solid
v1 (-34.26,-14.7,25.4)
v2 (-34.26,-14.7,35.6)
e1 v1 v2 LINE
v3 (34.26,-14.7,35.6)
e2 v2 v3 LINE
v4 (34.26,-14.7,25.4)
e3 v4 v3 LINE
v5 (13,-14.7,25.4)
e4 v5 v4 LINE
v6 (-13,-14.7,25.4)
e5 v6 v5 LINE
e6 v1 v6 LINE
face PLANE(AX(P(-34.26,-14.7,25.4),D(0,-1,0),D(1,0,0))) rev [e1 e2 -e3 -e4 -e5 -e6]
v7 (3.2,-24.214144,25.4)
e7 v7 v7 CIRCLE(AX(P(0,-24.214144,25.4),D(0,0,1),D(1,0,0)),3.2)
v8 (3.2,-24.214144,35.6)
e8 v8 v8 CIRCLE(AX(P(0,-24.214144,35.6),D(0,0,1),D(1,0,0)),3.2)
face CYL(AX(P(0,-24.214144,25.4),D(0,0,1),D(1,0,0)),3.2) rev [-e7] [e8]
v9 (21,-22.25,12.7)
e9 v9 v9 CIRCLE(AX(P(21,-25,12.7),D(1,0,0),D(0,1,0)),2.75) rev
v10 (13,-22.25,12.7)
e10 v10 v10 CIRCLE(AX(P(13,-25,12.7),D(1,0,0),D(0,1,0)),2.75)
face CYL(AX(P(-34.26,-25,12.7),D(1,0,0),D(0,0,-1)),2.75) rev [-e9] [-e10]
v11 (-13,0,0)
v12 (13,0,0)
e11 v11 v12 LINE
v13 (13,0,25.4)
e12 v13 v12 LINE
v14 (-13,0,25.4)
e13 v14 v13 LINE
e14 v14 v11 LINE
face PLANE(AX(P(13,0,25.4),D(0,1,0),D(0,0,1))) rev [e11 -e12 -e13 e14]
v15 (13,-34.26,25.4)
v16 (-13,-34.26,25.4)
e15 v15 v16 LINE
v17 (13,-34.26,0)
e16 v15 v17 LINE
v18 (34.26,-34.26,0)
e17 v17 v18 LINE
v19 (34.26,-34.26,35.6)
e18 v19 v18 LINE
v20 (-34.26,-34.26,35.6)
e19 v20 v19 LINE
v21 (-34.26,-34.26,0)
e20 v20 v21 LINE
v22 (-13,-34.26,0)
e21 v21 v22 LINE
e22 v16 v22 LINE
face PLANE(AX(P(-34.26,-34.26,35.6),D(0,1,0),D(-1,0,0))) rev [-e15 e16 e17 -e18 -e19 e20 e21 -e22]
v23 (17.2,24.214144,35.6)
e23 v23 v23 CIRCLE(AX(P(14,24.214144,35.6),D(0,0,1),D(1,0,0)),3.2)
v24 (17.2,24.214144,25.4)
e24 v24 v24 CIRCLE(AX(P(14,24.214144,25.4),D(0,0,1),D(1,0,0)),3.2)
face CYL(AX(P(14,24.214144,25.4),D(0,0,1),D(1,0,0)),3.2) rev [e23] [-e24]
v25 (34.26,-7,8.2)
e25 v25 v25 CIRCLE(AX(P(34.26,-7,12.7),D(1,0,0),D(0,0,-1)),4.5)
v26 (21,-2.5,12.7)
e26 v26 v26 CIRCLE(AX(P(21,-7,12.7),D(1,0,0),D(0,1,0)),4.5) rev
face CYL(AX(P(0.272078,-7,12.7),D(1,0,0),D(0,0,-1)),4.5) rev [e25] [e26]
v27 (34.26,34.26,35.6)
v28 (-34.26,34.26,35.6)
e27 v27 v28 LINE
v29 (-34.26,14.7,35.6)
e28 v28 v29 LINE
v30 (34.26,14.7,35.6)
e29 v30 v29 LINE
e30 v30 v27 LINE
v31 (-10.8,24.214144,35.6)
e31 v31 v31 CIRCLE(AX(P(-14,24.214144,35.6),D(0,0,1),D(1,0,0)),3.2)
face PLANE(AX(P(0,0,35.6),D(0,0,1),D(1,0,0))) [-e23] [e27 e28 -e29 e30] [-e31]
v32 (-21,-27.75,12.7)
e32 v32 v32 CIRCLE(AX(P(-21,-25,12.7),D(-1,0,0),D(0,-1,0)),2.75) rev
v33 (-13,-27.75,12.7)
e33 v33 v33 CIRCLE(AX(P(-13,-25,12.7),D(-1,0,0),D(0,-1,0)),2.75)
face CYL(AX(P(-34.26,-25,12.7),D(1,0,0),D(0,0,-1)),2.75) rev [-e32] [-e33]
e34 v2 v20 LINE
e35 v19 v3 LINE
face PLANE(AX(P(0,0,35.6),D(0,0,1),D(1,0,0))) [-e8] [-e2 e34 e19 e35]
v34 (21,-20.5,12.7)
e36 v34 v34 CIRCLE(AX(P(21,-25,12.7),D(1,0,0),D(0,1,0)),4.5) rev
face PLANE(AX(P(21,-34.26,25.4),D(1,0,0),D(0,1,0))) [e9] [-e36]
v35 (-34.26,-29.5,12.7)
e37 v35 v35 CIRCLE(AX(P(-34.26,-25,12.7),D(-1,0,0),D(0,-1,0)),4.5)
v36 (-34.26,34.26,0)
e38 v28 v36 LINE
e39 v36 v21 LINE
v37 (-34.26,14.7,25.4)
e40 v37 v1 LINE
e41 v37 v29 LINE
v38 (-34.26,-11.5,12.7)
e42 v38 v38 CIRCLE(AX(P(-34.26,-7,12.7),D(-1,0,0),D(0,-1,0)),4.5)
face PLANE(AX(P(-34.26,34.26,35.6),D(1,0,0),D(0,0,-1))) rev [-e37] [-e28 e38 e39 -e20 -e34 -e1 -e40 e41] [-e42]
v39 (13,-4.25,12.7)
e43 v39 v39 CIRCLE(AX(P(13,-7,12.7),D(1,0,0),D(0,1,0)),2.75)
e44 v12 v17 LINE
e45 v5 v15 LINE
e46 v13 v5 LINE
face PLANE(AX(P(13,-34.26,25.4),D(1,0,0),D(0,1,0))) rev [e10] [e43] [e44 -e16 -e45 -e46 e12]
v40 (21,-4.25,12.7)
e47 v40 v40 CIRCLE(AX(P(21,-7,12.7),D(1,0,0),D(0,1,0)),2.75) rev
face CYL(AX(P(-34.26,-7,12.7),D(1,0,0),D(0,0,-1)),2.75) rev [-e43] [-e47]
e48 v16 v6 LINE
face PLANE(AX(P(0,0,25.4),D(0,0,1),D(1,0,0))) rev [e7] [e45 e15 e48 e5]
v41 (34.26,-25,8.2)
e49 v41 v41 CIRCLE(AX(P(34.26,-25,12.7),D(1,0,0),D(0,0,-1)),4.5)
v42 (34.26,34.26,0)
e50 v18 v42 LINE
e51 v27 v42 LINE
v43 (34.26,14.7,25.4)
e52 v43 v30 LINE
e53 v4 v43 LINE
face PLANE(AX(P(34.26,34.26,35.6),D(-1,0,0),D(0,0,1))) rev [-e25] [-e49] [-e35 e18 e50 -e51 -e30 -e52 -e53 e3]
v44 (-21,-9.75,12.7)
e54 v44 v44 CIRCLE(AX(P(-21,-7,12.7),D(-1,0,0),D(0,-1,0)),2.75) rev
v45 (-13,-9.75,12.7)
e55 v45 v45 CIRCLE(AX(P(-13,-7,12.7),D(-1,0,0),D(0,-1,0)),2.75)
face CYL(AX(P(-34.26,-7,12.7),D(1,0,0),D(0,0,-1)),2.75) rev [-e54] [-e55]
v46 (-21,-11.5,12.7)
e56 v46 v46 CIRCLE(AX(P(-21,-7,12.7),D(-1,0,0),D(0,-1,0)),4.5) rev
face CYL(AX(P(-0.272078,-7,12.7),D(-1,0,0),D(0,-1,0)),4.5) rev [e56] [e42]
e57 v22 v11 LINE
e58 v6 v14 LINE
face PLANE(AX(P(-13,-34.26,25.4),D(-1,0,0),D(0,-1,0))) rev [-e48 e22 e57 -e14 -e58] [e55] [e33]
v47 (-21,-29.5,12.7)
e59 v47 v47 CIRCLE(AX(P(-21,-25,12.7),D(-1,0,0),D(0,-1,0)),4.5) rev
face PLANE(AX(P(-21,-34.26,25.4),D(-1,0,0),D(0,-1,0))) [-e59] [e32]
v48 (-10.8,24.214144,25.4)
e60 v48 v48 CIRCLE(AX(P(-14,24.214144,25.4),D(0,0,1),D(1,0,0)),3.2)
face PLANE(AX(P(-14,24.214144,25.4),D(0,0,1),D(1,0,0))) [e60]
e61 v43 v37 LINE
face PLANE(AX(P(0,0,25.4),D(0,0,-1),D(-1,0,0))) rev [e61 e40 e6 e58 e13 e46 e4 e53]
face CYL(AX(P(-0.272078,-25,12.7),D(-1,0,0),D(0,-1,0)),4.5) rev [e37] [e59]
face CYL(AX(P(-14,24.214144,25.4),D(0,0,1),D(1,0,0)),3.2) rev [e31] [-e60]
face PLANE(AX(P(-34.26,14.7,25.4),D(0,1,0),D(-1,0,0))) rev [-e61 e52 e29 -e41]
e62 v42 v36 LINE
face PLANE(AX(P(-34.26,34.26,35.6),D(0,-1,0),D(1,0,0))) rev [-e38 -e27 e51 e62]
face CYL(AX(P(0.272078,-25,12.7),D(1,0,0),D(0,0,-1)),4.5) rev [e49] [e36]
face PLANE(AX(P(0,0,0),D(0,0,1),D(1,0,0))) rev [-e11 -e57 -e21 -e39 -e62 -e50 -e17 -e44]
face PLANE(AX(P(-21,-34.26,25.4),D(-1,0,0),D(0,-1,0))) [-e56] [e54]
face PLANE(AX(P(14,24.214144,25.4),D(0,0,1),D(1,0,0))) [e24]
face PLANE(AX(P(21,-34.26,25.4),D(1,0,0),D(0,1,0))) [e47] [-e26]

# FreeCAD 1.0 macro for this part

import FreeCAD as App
import Part
import Sketcher
from FreeCAD import Vector


def add_polygon(sketch, points):
    """Adds a closed chain of lines whose ends are joined by coincident constraints."""
    first, n = sketch.GeometryCount, len(points)
    for a, b in zip(points, points[1:] + points[:1]):
        sketch.addGeometry(Part.LineSegment(App.Vector(*a, 0), App.Vector(*b, 0)), False)
    for i in range(n):
        sketch.addConstraint(Sketcher.Constraint("Coincident", first + i, 2, first + (i + 1) % n, 1))

doc = App.newDocument("Part")
params = doc.addObject("Spreadsheet::Sheet", "Params")
for row, (alias, value) in enumerate([
    ("sketch1_width", "68.52 mm"),
    ("pad1_length", "35.6 mm"),
    ("sketch2_height", "29.4 mm"),
    ("sketch2_width", "68.52 mm"),
    ("pocket1_length", "10.2 mm"),
    ("sketch3_diameter", "6.4 mm"),
    ("pocket2_length", "10.2 mm"),
    ("sketch4_width", "26 mm"),
    ("sketch4_height", "34.26 mm"),
    ("pocket3_length", "25.4 mm"),
    ("sketch5_diameter", "5.5 mm"),
    ("sketch6_diameter", "9 mm"),
    ("pocket5_length", "13.26 mm"),
    ("sketch7_diameter", "9 mm"),
    ("pocket6_length", "13.26 mm"),
], start=1):
    params.set(f"A{row}", alias)
    params.set(f"B{row}", "=" + value)
    params.setAlias(f"B{row}", alias)

body = doc.addObject("PartDesign::Body", "Body")

# Sketch on XY plane
sketch1 = body.newObject("Sketcher::SketchObject", "Sketch")
sketch1.AttachmentSupport = (doc.getObject("XY_Plane"), [""])
sketch1.MapMode = "FlatFace"
add_polygon(sketch1, [(-34, 34), (-34, -34), (34, -34), (34, 34)])  # lines 0-3
sketch1.addConstraint(Sketcher.Constraint("Vertical", 0))
sketch1.addConstraint(Sketcher.Constraint("Horizontal", 1))
sketch1.addConstraint(Sketcher.Constraint("Vertical", 2))
sketch1.addConstraint(Sketcher.Constraint("Horizontal", 3))
sketch1.addConstraint(Sketcher.Constraint("Symmetric", 0, 2, 2, 2, -1, 1))
sketch1.addConstraint(Sketcher.Constraint("Equal", 3, 0))
sketch1.addConstraint(Sketcher.Constraint("DistanceX", 1, 1, 1, 2, 68.52))
sketch1.setExpression("Constraints[10]", "Params.sketch1_width")
pad1 = body.newObject("PartDesign::Pad", "Pad")
pad1.Profile = sketch1
pad1.setExpression("Length", "Params.pad1_length")

# Sketch on XY plane
sketch2 = body.newObject("Sketcher::SketchObject", "Sketch001")
sketch2.AttachmentSupport = (doc.getObject("XY_Plane"), [""])
sketch2.MapMode = "FlatFace"
sketch2.AttachmentOffset = App.Placement(Vector(0, 0, 35.6), App.Rotation())
add_polygon(sketch2, [(-34, 15), (-34, -15), (34, -15), (34, 15)])  # lines 0-3
sketch2.addConstraint(Sketcher.Constraint("Vertical", 0))
sketch2.addConstraint(Sketcher.Constraint("Horizontal", 1))
sketch2.addConstraint(Sketcher.Constraint("Vertical", 2))
sketch2.addConstraint(Sketcher.Constraint("Horizontal", 3))
sketch2.addConstraint(Sketcher.Constraint("Symmetric", 0, 2, 2, 2, -1, 1))
sketch2.addConstraint(Sketcher.Constraint("DistanceY", 0, 2, 0, 1, 29.4))
sketch2.addConstraint(Sketcher.Constraint("DistanceX", 1, 1, 1, 2, 68.52))
sketch2.setExpression("Constraints[9]", "Params.sketch2_height")
sketch2.setExpression("Constraints[10]", "Params.sketch2_width")
pocket1 = body.newObject("PartDesign::Pocket", "Pocket")
pocket1.Profile = sketch2
pocket1.setExpression("Length", "Params.pocket1_length")

# Sketch on XY plane
sketch3 = body.newObject("Sketcher::SketchObject", "Sketch002")
sketch3.AttachmentSupport = (doc.getObject("XY_Plane"), [""])
sketch3.MapMode = "FlatFace"
sketch3.AttachmentOffset = App.Placement(Vector(0, 0, 35.6), App.Rotation())
sketch3.addGeometry(Part.Circle(Vector(-14, 24.2, 0), Vector(0, 0, 1), 3.2), False)
sketch3.addGeometry(Part.Circle(Vector(14, 24.2, 0), Vector(0, 0, 1), 3.2), False)
sketch3.addGeometry(Part.Circle(Vector(0, -24.2, 0), Vector(0, 0, 1), 3.2), False)
sketch3.addConstraint(Sketcher.Constraint("Equal", 0, 1))
sketch3.addConstraint(Sketcher.Constraint("Equal", 1, 2))
sketch3.addConstraint(Sketcher.Constraint("Symmetric", 0, 3, 1, 3, -2))
sketch3.addConstraint(Sketcher.Constraint("PointOnObject", 2, 3, -2))
sketch3.addConstraint(Sketcher.Constraint("Diameter", 0, 6.4))
sketch3.addConstraint(Sketcher.Constraint("DistanceX", 0, 3, -1, 1, 14.0))
sketch3.addConstraint(Sketcher.Constraint("DistanceY", 2, 3, 0, 3, 48.428289))
sketch3.addConstraint(Sketcher.Constraint("DistanceY", -1, 1, 0, 3, 24.214144))
sketch3.setExpression("Constraints[4]", "Params.sketch3_diameter")
pocket2 = body.newObject("PartDesign::Pocket", "Pocket001")
pocket2.Profile = sketch3
pocket2.setExpression("Length", "Params.pocket2_length")

# Sketch on XY plane
sketch4 = body.newObject("Sketcher::SketchObject", "Sketch003")
sketch4.AttachmentSupport = (doc.getObject("XY_Plane"), [""])
sketch4.MapMode = "FlatFace"
add_polygon(sketch4, [(13, 0), (13, -34), (-13, -34), (-13, 0)])  # lines 0-3
sketch4.addConstraint(Sketcher.Constraint("Vertical", 0))
sketch4.addConstraint(Sketcher.Constraint("Horizontal", 1))
sketch4.addConstraint(Sketcher.Constraint("Vertical", 2))
sketch4.addConstraint(Sketcher.Constraint("Horizontal", 3))
sketch4.addConstraint(Sketcher.Constraint("Symmetric", 2, 2, 3, 2, -1, 1))
sketch4.addConstraint(Sketcher.Constraint("DistanceX", 1, 2, 1, 1, 26.0))
sketch4.addConstraint(Sketcher.Constraint("DistanceY", 0, 2, 0, 1, 34.26))
sketch4.setExpression("Constraints[9]", "Params.sketch4_width")
sketch4.setExpression("Constraints[10]", "Params.sketch4_height")
pocket3 = body.newObject("PartDesign::Pocket", "Pocket002")
pocket3.Profile = sketch4
pocket3.setExpression("Length", "Params.pocket3_length")
pocket3.Reversed = True

# Sketch on YZ plane
sketch5 = body.newObject("Sketcher::SketchObject", "Sketch004")
sketch5.AttachmentSupport = (doc.getObject("YZ_Plane"), [""])
sketch5.MapMode = "FlatFace"
sketch5.AttachmentOffset = App.Placement(Vector(0, 0, 34.26), App.Rotation())
sketch5.addGeometry(Part.Circle(Vector(-7, 12.7, 0), Vector(0, 0, 1), 2.8), False)
sketch5.addGeometry(Part.Circle(Vector(-25, 12.7, 0), Vector(0, 0, 1), 2.8), False)
sketch5.addConstraint(Sketcher.Constraint("Equal", 0, 1))
sketch5.addConstraint(Sketcher.Constraint("Horizontal", 0, 3, 1, 3))
sketch5.addConstraint(Sketcher.Constraint("Diameter", 0, 5.5))
sketch5.addConstraint(Sketcher.Constraint("DistanceX", 0, 3, -1, 1, 7.0))
sketch5.addConstraint(Sketcher.Constraint("DistanceX", 1, 3, -1, 1, 25.0))
sketch5.addConstraint(Sketcher.Constraint("DistanceY", -1, 1, 0, 3, 12.7))
sketch5.setExpression("Constraints[2]", "Params.sketch5_diameter")
pocket4 = body.newObject("PartDesign::Pocket", "Pocket003")
pocket4.Profile = sketch5
pocket4.Type = "ThroughAll"
pocket4.Midplane = True

# Sketch on YZ plane
sketch6 = body.newObject("Sketcher::SketchObject", "Sketch005")
sketch6.AttachmentSupport = (doc.getObject("YZ_Plane"), [""])
sketch6.MapMode = "FlatFace"
sketch6.AttachmentOffset = App.Placement(Vector(0, 0, 34.26), App.Rotation())
sketch6.addGeometry(Part.Circle(Vector(-7, 12.7, 0), Vector(0, 0, 1), 4.5), False)
sketch6.addGeometry(Part.Circle(Vector(-25, 12.7, 0), Vector(0, 0, 1), 4.5), False)
sketch6.addConstraint(Sketcher.Constraint("Equal", 0, 1))
sketch6.addConstraint(Sketcher.Constraint("Horizontal", 0, 3, 1, 3))
sketch6.addConstraint(Sketcher.Constraint("Diameter", 0, 9.0))
sketch6.addConstraint(Sketcher.Constraint("DistanceX", 0, 3, -1, 1, 7.0))
sketch6.addConstraint(Sketcher.Constraint("DistanceX", 1, 3, -1, 1, 25.0))
sketch6.addConstraint(Sketcher.Constraint("DistanceY", -1, 1, 0, 3, 12.7))
sketch6.setExpression("Constraints[2]", "Params.sketch6_diameter")
pocket5 = body.newObject("PartDesign::Pocket", "Pocket004")
pocket5.Profile = sketch6
pocket5.setExpression("Length", "Params.pocket5_length")

# Sketch on YZ plane
sketch7 = body.newObject("Sketcher::SketchObject", "Sketch006")
sketch7.AttachmentSupport = (doc.getObject("YZ_Plane"), [""])
sketch7.MapMode = "FlatFace"
sketch7.AttachmentOffset = App.Placement(Vector(0, 0, -21), App.Rotation())
sketch7.addGeometry(Part.Circle(Vector(-7, 12.7, 0), Vector(0, 0, 1), 4.5), False)
sketch7.addGeometry(Part.Circle(Vector(-25, 12.7, 0), Vector(0, 0, 1), 4.5), False)
sketch7.addConstraint(Sketcher.Constraint("Equal", 0, 1))
sketch7.addConstraint(Sketcher.Constraint("Horizontal", 0, 3, 1, 3))
sketch7.addConstraint(Sketcher.Constraint("Diameter", 0, 9.0))
sketch7.addConstraint(Sketcher.Constraint("DistanceX", 0, 3, -1, 1, 7.0))
sketch7.addConstraint(Sketcher.Constraint("DistanceX", 1, 3, -1, 1, 25.0))
sketch7.addConstraint(Sketcher.Constraint("DistanceY", -1, 1, 0, 3, 12.7))
sketch7.setExpression("Constraints[2]", "Params.sketch7_diameter")
pocket6 = body.newObject("PartDesign::Pocket", "Pocket005")
pocket6.Profile = sketch7
pocket6.setExpression("Length", "Params.pocket6_length")

doc.recompute()
